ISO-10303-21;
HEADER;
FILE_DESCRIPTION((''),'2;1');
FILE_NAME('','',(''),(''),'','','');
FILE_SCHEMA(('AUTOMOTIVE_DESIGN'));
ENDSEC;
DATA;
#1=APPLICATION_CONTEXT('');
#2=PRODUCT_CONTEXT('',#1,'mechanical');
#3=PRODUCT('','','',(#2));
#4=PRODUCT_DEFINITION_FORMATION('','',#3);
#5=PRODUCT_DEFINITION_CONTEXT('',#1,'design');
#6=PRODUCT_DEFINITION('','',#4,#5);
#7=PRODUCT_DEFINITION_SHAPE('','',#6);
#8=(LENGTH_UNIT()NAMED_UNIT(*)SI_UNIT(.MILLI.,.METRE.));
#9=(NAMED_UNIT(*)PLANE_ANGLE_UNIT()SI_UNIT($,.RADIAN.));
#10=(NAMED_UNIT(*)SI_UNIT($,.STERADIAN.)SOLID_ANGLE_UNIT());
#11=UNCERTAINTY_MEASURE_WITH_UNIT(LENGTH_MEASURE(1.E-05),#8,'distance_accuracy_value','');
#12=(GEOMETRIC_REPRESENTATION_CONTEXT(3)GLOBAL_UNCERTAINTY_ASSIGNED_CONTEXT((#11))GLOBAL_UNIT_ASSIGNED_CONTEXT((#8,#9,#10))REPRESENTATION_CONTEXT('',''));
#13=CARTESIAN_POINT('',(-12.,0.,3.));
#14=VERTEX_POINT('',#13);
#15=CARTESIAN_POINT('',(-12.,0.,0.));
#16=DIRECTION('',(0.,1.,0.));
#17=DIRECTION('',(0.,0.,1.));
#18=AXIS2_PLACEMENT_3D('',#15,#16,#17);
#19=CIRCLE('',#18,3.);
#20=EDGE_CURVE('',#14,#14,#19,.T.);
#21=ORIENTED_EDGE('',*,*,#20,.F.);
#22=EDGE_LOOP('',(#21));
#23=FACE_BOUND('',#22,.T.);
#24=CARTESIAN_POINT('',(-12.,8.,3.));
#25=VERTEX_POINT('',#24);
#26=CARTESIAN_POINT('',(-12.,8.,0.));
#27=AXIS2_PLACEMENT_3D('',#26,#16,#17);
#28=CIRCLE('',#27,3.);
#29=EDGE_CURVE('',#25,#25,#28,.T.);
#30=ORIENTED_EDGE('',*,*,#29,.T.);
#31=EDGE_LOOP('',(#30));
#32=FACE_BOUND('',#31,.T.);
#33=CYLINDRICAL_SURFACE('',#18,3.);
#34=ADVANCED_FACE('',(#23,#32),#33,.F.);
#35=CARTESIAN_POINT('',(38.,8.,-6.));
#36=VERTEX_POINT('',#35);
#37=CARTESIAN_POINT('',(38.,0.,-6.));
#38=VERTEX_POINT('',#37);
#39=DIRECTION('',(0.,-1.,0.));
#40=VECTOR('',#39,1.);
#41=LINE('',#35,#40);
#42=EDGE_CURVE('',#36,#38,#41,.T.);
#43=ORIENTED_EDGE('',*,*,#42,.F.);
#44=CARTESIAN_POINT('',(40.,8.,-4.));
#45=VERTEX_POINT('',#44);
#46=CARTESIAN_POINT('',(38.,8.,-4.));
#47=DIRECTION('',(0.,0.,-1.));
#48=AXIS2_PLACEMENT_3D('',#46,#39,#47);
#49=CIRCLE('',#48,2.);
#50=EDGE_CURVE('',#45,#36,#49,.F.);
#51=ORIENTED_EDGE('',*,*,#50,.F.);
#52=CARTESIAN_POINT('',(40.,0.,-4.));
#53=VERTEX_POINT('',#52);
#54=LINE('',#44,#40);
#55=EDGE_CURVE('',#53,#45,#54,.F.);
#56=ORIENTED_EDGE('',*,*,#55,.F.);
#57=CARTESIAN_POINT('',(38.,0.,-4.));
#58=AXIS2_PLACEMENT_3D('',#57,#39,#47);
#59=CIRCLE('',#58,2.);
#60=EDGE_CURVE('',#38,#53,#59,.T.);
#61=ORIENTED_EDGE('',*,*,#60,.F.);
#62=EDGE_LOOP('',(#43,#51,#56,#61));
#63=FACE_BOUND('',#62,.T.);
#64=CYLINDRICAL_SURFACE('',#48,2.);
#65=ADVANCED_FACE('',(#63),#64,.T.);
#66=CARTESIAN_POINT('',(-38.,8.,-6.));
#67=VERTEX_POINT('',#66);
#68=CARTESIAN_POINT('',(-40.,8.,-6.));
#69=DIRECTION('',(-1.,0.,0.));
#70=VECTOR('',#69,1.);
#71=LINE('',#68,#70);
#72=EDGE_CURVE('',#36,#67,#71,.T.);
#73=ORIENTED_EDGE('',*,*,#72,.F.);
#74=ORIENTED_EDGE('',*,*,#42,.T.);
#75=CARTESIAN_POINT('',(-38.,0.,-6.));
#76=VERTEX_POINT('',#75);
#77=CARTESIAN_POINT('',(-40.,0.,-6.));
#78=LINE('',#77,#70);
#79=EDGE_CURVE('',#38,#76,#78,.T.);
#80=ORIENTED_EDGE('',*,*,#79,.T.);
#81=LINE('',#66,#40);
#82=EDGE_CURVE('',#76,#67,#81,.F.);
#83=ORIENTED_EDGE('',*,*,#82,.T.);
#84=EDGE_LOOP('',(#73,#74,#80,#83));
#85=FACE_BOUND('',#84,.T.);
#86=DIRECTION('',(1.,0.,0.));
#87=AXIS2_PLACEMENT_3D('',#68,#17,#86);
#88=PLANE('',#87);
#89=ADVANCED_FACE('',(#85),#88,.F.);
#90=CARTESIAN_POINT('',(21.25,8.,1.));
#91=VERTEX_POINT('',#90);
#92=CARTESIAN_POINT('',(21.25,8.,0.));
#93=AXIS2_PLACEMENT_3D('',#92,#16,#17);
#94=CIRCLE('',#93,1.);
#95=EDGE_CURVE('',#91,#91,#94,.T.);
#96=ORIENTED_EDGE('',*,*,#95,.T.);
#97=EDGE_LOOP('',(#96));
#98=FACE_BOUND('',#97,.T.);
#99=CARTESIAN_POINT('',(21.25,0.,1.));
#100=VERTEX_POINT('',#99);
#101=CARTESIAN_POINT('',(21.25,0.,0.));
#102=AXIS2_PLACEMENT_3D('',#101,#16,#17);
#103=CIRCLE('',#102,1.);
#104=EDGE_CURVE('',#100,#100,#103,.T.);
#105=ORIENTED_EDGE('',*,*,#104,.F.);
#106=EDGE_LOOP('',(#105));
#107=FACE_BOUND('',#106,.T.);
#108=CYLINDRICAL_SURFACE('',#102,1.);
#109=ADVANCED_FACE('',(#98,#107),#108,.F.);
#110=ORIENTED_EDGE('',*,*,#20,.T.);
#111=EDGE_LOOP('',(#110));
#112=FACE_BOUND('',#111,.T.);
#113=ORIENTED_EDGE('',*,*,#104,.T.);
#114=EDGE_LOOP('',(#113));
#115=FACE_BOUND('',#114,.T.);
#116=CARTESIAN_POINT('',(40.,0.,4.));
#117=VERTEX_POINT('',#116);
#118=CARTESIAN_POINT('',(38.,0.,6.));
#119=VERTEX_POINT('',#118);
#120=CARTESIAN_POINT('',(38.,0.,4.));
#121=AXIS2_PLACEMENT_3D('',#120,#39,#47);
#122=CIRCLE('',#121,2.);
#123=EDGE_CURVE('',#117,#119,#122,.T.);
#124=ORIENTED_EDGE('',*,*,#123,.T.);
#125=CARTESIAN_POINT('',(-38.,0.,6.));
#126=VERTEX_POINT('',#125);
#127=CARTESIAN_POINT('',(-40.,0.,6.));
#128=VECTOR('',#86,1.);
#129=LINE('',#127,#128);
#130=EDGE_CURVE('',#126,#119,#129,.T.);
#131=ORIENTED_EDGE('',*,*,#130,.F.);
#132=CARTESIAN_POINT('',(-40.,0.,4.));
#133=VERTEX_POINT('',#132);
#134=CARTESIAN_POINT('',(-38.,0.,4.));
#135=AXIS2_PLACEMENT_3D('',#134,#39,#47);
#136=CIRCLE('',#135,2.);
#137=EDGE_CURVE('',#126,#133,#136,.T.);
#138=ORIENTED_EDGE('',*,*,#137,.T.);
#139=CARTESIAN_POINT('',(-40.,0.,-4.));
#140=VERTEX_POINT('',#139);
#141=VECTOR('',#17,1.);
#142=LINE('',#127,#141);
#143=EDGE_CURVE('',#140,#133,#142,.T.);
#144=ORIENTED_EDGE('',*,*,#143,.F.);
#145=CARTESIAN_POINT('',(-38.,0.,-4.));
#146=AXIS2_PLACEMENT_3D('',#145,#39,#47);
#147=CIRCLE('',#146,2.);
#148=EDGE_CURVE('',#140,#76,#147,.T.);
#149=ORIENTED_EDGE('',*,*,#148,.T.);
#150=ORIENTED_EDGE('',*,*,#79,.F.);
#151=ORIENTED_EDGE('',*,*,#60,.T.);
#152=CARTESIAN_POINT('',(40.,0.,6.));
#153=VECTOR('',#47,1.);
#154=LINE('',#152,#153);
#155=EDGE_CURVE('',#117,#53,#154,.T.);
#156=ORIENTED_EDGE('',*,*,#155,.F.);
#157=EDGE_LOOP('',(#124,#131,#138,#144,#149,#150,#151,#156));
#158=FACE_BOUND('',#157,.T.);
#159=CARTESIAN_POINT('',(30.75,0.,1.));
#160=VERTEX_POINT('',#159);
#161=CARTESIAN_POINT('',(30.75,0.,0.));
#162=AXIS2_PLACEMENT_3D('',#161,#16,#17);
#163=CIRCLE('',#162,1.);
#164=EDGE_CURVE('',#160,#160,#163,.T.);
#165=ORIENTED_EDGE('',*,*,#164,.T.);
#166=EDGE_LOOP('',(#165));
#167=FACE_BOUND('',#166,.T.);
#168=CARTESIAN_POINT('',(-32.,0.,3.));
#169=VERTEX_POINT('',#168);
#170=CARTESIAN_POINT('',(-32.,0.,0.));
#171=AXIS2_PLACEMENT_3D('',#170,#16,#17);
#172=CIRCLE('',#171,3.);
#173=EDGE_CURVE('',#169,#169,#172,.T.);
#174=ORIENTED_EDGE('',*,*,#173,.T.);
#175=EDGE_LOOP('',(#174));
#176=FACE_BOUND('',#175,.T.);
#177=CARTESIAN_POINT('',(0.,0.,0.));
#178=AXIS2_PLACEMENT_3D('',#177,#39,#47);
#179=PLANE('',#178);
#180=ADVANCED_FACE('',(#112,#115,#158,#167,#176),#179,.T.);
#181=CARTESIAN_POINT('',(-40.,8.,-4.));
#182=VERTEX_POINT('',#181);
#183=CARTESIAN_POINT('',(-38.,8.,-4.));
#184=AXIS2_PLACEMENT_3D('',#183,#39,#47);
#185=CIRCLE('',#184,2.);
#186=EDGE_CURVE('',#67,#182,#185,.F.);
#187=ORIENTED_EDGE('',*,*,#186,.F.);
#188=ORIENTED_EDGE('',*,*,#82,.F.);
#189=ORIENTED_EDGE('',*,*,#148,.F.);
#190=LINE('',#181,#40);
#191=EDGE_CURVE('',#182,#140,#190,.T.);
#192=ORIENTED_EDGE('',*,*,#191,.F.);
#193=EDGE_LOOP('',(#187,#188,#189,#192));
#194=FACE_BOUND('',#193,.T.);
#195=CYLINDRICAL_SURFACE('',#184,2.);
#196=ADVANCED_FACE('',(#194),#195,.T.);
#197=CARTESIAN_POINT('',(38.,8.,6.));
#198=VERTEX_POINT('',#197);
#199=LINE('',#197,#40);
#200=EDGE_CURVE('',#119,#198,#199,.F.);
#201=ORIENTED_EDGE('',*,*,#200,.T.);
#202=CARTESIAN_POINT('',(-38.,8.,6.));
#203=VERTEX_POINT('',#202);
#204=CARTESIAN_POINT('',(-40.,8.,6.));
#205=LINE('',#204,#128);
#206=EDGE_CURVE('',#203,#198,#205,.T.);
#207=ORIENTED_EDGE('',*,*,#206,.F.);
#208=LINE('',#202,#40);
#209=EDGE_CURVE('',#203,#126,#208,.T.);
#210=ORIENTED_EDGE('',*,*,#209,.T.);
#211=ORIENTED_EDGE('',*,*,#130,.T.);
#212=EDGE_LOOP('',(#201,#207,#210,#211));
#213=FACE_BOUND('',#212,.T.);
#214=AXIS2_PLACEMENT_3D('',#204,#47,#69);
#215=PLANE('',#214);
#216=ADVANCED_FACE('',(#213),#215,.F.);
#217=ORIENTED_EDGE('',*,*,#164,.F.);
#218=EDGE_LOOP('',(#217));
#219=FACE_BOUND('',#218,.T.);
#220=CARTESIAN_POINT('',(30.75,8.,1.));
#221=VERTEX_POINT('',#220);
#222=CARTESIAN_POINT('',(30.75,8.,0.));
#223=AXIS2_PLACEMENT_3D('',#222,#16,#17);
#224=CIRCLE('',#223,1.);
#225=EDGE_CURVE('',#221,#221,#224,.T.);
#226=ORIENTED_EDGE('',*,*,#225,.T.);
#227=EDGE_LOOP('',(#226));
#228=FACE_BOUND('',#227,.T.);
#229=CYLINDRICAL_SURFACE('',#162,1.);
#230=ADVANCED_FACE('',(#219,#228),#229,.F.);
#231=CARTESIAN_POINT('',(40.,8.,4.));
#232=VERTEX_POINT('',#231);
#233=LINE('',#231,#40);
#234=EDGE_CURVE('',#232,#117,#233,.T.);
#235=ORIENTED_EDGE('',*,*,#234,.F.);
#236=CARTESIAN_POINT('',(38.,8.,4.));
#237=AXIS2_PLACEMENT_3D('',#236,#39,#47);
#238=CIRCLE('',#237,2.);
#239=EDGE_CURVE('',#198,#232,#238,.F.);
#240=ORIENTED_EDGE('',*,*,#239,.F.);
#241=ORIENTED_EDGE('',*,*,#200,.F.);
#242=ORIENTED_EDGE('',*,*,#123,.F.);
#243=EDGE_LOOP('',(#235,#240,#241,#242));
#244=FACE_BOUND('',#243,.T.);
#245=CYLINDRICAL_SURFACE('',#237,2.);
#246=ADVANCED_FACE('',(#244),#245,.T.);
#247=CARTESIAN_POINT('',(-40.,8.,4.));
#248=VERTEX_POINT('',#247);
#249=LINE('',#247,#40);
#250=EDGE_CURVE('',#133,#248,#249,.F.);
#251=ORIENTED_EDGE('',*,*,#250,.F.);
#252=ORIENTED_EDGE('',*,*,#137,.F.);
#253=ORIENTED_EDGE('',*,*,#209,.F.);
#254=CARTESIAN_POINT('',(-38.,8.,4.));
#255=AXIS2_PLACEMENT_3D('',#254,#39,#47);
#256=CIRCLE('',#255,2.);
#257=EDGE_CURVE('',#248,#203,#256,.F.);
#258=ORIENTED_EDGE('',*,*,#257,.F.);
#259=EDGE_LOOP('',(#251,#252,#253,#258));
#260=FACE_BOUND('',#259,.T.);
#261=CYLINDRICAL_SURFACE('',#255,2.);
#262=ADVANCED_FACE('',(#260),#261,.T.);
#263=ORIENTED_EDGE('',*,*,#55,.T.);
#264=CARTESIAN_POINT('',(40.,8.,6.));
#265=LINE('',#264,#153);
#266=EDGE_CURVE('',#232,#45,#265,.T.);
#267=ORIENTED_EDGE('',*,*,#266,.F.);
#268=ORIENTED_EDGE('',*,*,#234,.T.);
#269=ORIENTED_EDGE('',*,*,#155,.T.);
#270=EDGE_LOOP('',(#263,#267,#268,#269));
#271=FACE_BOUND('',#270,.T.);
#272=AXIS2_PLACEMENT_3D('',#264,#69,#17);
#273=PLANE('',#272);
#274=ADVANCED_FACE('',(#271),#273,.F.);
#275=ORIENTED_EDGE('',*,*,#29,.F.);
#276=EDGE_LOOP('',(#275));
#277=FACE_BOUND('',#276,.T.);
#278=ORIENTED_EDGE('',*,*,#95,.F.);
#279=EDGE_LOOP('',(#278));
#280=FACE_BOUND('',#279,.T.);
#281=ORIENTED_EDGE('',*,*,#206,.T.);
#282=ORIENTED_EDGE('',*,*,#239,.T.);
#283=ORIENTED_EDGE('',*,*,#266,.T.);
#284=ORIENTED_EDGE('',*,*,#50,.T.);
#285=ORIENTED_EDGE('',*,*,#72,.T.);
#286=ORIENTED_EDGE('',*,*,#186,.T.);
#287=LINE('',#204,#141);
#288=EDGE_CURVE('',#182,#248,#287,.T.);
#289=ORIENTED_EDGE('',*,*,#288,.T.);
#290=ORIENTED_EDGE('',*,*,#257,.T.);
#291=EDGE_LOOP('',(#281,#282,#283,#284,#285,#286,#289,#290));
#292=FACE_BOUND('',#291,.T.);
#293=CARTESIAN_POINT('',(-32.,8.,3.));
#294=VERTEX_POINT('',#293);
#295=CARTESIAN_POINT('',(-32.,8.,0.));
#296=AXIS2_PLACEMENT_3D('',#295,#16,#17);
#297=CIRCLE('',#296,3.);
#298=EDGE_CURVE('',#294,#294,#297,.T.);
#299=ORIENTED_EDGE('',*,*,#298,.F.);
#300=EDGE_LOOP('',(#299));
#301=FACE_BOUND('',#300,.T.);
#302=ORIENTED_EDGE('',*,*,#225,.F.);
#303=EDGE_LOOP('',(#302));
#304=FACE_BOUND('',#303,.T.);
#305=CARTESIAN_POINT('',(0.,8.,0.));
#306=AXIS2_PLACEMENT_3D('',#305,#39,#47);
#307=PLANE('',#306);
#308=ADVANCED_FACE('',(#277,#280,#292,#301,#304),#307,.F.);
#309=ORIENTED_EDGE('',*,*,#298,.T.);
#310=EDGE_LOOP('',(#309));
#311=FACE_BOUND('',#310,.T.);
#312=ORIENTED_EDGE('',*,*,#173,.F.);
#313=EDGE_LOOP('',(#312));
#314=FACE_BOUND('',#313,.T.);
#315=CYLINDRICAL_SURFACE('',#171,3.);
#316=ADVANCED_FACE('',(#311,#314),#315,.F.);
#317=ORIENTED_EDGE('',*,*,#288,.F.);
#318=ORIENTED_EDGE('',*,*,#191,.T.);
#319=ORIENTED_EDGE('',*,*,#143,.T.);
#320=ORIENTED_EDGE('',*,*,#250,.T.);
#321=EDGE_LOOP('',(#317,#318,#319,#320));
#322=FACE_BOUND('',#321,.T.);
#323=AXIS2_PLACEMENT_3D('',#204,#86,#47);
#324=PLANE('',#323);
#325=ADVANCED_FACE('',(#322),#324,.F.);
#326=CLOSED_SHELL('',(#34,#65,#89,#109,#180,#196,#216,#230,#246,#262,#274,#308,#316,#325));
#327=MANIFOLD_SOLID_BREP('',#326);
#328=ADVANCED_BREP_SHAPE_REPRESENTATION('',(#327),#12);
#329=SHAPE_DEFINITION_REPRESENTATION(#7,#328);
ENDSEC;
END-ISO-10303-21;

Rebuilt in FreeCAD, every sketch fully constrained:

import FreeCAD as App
import Part
import Sketcher


def edges_at(feature, points):
    """Names of the edges that pass closest to the given points."""
    edges = feature.Shape.Edges
    near = lambda p: min(range(len(edges)), key=lambda i: edges[i].distToShape(Part.Vertex(*p))[0])
    return sorted({f"Edge{near(p) + 1}" for p in points})

doc = App.newDocument("Part")
body = doc.addObject("PartDesign::Body", "Body")

sketch1 = body.newObject("Sketcher::SketchObject", "Sketch")
sketch1.AttachmentSupport = (doc.getObject("XZ_Plane"), [""])
sketch1.MapMode = "FlatFace"
sketch1.addGeometry(Part.LineSegment(App.Vector(-40, -6, 0), App.Vector(-40, 6, 0)), False)
sketch1.addGeometry(Part.LineSegment(App.Vector(-40, 6, 0), App.Vector(40, 6, 0)), False)
sketch1.addGeometry(Part.LineSegment(App.Vector(40, 6, 0), App.Vector(40, -6, 0)), False)
sketch1.addGeometry(Part.LineSegment(App.Vector(40, -6, 0), App.Vector(-40, -6, 0)), False)
sketch1.addConstraint(Sketcher.Constraint("Coincident", 0, 2, 1, 1))
sketch1.addConstraint(Sketcher.Constraint("Coincident", 1, 2, 2, 1))
sketch1.addConstraint(Sketcher.Constraint("Coincident", 2, 2, 3, 1))
sketch1.addConstraint(Sketcher.Constraint("Coincident", 3, 2, 0, 1))
sketch1.addConstraint(Sketcher.Constraint("Vertical", 0))
sketch1.addConstraint(Sketcher.Constraint("Horizontal", 1))
sketch1.addConstraint(Sketcher.Constraint("Vertical", 2))
sketch1.addConstraint(Sketcher.Constraint("Horizontal", 3))
sketch1.addConstraint(Sketcher.Constraint("Symmetric", 0, 2, 2, 2, -1, 1))
sketch1.addConstraint(Sketcher.Constraint("DistanceX", 1, 1, 1, 2, 80.0))
sketch1.addConstraint(Sketcher.Constraint("DistanceY", 0, 1, 0, 2, 12.0))
pad1 = body.newObject("PartDesign::Pad", "Pad")
pad1.Profile = sketch1
pad1.Length = 8
pad1.Reversed = True

sketch2 = body.newObject("Sketcher::SketchObject", "Sketch001")
sketch2.AttachmentSupport = (doc.getObject("XZ_Plane"), [""])
sketch2.MapMode = "FlatFace"
sketch2.AttachmentOffset = App.Placement(App.Vector(0, 0, -8), App.Rotation())
sketch2.addGeometry(Part.Circle(App.Vector(-32, 0, 0), App.Vector(0, 0, 1), 3), False)
sketch2.addGeometry(Part.Circle(App.Vector(-12, 0, 0), App.Vector(0, 0, 1), 3), False)
sketch2.addGeometry(Part.Circle(App.Vector(21.2, 0, 0), App.Vector(0, 0, 1), 1), False)
sketch2.addGeometry(Part.Circle(App.Vector(30.8, 0, 0), App.Vector(0, 0, 1), 1), False)
sketch2.addConstraint(Sketcher.Constraint("Equal", 0, 1))
sketch2.addConstraint(Sketcher.Constraint("Equal", 2, 3))
sketch2.addConstraint(Sketcher.Constraint("PointOnObject", 0, 3, -1))
sketch2.addConstraint(Sketcher.Constraint("PointOnObject", 1, 3, -1))
sketch2.addConstraint(Sketcher.Constraint("PointOnObject", 2, 3, -1))
sketch2.addConstraint(Sketcher.Constraint("PointOnObject", 3, 3, -1))
sketch2.addConstraint(Sketcher.Constraint("Diameter", 0, 6.0))
sketch2.addConstraint(Sketcher.Constraint("Diameter", 2, 2.0))
sketch2.addConstraint(Sketcher.Constraint("DistanceX", 0, 3, -1, 1, 32.0))
sketch2.addConstraint(Sketcher.Constraint("DistanceX", 1, 3, -1, 1, 12.0))
sketch2.addConstraint(Sketcher.Constraint("DistanceX", 2, 3, 3, 3, 9.5))
sketch2.addConstraint(Sketcher.Constraint("DistanceX", -1, 1, 2, 3, 21.25))
pocket1 = body.newObject("PartDesign::Pocket", "Pocket")
pocket1.Profile = sketch2
pocket1.Type = "ThroughAll"
pocket1.Reversed = True
doc.recompute()

fillet = body.newObject("PartDesign::Fillet", "Fillet")
fillet.Base = (pocket1, edges_at(pocket1, [
    (40, 4, 6),
    (-40, 4, 6),
    (-40, 4, -6),
    (40, 4, -6),
]))
fillet.Radius = 2

doc.recompute()
